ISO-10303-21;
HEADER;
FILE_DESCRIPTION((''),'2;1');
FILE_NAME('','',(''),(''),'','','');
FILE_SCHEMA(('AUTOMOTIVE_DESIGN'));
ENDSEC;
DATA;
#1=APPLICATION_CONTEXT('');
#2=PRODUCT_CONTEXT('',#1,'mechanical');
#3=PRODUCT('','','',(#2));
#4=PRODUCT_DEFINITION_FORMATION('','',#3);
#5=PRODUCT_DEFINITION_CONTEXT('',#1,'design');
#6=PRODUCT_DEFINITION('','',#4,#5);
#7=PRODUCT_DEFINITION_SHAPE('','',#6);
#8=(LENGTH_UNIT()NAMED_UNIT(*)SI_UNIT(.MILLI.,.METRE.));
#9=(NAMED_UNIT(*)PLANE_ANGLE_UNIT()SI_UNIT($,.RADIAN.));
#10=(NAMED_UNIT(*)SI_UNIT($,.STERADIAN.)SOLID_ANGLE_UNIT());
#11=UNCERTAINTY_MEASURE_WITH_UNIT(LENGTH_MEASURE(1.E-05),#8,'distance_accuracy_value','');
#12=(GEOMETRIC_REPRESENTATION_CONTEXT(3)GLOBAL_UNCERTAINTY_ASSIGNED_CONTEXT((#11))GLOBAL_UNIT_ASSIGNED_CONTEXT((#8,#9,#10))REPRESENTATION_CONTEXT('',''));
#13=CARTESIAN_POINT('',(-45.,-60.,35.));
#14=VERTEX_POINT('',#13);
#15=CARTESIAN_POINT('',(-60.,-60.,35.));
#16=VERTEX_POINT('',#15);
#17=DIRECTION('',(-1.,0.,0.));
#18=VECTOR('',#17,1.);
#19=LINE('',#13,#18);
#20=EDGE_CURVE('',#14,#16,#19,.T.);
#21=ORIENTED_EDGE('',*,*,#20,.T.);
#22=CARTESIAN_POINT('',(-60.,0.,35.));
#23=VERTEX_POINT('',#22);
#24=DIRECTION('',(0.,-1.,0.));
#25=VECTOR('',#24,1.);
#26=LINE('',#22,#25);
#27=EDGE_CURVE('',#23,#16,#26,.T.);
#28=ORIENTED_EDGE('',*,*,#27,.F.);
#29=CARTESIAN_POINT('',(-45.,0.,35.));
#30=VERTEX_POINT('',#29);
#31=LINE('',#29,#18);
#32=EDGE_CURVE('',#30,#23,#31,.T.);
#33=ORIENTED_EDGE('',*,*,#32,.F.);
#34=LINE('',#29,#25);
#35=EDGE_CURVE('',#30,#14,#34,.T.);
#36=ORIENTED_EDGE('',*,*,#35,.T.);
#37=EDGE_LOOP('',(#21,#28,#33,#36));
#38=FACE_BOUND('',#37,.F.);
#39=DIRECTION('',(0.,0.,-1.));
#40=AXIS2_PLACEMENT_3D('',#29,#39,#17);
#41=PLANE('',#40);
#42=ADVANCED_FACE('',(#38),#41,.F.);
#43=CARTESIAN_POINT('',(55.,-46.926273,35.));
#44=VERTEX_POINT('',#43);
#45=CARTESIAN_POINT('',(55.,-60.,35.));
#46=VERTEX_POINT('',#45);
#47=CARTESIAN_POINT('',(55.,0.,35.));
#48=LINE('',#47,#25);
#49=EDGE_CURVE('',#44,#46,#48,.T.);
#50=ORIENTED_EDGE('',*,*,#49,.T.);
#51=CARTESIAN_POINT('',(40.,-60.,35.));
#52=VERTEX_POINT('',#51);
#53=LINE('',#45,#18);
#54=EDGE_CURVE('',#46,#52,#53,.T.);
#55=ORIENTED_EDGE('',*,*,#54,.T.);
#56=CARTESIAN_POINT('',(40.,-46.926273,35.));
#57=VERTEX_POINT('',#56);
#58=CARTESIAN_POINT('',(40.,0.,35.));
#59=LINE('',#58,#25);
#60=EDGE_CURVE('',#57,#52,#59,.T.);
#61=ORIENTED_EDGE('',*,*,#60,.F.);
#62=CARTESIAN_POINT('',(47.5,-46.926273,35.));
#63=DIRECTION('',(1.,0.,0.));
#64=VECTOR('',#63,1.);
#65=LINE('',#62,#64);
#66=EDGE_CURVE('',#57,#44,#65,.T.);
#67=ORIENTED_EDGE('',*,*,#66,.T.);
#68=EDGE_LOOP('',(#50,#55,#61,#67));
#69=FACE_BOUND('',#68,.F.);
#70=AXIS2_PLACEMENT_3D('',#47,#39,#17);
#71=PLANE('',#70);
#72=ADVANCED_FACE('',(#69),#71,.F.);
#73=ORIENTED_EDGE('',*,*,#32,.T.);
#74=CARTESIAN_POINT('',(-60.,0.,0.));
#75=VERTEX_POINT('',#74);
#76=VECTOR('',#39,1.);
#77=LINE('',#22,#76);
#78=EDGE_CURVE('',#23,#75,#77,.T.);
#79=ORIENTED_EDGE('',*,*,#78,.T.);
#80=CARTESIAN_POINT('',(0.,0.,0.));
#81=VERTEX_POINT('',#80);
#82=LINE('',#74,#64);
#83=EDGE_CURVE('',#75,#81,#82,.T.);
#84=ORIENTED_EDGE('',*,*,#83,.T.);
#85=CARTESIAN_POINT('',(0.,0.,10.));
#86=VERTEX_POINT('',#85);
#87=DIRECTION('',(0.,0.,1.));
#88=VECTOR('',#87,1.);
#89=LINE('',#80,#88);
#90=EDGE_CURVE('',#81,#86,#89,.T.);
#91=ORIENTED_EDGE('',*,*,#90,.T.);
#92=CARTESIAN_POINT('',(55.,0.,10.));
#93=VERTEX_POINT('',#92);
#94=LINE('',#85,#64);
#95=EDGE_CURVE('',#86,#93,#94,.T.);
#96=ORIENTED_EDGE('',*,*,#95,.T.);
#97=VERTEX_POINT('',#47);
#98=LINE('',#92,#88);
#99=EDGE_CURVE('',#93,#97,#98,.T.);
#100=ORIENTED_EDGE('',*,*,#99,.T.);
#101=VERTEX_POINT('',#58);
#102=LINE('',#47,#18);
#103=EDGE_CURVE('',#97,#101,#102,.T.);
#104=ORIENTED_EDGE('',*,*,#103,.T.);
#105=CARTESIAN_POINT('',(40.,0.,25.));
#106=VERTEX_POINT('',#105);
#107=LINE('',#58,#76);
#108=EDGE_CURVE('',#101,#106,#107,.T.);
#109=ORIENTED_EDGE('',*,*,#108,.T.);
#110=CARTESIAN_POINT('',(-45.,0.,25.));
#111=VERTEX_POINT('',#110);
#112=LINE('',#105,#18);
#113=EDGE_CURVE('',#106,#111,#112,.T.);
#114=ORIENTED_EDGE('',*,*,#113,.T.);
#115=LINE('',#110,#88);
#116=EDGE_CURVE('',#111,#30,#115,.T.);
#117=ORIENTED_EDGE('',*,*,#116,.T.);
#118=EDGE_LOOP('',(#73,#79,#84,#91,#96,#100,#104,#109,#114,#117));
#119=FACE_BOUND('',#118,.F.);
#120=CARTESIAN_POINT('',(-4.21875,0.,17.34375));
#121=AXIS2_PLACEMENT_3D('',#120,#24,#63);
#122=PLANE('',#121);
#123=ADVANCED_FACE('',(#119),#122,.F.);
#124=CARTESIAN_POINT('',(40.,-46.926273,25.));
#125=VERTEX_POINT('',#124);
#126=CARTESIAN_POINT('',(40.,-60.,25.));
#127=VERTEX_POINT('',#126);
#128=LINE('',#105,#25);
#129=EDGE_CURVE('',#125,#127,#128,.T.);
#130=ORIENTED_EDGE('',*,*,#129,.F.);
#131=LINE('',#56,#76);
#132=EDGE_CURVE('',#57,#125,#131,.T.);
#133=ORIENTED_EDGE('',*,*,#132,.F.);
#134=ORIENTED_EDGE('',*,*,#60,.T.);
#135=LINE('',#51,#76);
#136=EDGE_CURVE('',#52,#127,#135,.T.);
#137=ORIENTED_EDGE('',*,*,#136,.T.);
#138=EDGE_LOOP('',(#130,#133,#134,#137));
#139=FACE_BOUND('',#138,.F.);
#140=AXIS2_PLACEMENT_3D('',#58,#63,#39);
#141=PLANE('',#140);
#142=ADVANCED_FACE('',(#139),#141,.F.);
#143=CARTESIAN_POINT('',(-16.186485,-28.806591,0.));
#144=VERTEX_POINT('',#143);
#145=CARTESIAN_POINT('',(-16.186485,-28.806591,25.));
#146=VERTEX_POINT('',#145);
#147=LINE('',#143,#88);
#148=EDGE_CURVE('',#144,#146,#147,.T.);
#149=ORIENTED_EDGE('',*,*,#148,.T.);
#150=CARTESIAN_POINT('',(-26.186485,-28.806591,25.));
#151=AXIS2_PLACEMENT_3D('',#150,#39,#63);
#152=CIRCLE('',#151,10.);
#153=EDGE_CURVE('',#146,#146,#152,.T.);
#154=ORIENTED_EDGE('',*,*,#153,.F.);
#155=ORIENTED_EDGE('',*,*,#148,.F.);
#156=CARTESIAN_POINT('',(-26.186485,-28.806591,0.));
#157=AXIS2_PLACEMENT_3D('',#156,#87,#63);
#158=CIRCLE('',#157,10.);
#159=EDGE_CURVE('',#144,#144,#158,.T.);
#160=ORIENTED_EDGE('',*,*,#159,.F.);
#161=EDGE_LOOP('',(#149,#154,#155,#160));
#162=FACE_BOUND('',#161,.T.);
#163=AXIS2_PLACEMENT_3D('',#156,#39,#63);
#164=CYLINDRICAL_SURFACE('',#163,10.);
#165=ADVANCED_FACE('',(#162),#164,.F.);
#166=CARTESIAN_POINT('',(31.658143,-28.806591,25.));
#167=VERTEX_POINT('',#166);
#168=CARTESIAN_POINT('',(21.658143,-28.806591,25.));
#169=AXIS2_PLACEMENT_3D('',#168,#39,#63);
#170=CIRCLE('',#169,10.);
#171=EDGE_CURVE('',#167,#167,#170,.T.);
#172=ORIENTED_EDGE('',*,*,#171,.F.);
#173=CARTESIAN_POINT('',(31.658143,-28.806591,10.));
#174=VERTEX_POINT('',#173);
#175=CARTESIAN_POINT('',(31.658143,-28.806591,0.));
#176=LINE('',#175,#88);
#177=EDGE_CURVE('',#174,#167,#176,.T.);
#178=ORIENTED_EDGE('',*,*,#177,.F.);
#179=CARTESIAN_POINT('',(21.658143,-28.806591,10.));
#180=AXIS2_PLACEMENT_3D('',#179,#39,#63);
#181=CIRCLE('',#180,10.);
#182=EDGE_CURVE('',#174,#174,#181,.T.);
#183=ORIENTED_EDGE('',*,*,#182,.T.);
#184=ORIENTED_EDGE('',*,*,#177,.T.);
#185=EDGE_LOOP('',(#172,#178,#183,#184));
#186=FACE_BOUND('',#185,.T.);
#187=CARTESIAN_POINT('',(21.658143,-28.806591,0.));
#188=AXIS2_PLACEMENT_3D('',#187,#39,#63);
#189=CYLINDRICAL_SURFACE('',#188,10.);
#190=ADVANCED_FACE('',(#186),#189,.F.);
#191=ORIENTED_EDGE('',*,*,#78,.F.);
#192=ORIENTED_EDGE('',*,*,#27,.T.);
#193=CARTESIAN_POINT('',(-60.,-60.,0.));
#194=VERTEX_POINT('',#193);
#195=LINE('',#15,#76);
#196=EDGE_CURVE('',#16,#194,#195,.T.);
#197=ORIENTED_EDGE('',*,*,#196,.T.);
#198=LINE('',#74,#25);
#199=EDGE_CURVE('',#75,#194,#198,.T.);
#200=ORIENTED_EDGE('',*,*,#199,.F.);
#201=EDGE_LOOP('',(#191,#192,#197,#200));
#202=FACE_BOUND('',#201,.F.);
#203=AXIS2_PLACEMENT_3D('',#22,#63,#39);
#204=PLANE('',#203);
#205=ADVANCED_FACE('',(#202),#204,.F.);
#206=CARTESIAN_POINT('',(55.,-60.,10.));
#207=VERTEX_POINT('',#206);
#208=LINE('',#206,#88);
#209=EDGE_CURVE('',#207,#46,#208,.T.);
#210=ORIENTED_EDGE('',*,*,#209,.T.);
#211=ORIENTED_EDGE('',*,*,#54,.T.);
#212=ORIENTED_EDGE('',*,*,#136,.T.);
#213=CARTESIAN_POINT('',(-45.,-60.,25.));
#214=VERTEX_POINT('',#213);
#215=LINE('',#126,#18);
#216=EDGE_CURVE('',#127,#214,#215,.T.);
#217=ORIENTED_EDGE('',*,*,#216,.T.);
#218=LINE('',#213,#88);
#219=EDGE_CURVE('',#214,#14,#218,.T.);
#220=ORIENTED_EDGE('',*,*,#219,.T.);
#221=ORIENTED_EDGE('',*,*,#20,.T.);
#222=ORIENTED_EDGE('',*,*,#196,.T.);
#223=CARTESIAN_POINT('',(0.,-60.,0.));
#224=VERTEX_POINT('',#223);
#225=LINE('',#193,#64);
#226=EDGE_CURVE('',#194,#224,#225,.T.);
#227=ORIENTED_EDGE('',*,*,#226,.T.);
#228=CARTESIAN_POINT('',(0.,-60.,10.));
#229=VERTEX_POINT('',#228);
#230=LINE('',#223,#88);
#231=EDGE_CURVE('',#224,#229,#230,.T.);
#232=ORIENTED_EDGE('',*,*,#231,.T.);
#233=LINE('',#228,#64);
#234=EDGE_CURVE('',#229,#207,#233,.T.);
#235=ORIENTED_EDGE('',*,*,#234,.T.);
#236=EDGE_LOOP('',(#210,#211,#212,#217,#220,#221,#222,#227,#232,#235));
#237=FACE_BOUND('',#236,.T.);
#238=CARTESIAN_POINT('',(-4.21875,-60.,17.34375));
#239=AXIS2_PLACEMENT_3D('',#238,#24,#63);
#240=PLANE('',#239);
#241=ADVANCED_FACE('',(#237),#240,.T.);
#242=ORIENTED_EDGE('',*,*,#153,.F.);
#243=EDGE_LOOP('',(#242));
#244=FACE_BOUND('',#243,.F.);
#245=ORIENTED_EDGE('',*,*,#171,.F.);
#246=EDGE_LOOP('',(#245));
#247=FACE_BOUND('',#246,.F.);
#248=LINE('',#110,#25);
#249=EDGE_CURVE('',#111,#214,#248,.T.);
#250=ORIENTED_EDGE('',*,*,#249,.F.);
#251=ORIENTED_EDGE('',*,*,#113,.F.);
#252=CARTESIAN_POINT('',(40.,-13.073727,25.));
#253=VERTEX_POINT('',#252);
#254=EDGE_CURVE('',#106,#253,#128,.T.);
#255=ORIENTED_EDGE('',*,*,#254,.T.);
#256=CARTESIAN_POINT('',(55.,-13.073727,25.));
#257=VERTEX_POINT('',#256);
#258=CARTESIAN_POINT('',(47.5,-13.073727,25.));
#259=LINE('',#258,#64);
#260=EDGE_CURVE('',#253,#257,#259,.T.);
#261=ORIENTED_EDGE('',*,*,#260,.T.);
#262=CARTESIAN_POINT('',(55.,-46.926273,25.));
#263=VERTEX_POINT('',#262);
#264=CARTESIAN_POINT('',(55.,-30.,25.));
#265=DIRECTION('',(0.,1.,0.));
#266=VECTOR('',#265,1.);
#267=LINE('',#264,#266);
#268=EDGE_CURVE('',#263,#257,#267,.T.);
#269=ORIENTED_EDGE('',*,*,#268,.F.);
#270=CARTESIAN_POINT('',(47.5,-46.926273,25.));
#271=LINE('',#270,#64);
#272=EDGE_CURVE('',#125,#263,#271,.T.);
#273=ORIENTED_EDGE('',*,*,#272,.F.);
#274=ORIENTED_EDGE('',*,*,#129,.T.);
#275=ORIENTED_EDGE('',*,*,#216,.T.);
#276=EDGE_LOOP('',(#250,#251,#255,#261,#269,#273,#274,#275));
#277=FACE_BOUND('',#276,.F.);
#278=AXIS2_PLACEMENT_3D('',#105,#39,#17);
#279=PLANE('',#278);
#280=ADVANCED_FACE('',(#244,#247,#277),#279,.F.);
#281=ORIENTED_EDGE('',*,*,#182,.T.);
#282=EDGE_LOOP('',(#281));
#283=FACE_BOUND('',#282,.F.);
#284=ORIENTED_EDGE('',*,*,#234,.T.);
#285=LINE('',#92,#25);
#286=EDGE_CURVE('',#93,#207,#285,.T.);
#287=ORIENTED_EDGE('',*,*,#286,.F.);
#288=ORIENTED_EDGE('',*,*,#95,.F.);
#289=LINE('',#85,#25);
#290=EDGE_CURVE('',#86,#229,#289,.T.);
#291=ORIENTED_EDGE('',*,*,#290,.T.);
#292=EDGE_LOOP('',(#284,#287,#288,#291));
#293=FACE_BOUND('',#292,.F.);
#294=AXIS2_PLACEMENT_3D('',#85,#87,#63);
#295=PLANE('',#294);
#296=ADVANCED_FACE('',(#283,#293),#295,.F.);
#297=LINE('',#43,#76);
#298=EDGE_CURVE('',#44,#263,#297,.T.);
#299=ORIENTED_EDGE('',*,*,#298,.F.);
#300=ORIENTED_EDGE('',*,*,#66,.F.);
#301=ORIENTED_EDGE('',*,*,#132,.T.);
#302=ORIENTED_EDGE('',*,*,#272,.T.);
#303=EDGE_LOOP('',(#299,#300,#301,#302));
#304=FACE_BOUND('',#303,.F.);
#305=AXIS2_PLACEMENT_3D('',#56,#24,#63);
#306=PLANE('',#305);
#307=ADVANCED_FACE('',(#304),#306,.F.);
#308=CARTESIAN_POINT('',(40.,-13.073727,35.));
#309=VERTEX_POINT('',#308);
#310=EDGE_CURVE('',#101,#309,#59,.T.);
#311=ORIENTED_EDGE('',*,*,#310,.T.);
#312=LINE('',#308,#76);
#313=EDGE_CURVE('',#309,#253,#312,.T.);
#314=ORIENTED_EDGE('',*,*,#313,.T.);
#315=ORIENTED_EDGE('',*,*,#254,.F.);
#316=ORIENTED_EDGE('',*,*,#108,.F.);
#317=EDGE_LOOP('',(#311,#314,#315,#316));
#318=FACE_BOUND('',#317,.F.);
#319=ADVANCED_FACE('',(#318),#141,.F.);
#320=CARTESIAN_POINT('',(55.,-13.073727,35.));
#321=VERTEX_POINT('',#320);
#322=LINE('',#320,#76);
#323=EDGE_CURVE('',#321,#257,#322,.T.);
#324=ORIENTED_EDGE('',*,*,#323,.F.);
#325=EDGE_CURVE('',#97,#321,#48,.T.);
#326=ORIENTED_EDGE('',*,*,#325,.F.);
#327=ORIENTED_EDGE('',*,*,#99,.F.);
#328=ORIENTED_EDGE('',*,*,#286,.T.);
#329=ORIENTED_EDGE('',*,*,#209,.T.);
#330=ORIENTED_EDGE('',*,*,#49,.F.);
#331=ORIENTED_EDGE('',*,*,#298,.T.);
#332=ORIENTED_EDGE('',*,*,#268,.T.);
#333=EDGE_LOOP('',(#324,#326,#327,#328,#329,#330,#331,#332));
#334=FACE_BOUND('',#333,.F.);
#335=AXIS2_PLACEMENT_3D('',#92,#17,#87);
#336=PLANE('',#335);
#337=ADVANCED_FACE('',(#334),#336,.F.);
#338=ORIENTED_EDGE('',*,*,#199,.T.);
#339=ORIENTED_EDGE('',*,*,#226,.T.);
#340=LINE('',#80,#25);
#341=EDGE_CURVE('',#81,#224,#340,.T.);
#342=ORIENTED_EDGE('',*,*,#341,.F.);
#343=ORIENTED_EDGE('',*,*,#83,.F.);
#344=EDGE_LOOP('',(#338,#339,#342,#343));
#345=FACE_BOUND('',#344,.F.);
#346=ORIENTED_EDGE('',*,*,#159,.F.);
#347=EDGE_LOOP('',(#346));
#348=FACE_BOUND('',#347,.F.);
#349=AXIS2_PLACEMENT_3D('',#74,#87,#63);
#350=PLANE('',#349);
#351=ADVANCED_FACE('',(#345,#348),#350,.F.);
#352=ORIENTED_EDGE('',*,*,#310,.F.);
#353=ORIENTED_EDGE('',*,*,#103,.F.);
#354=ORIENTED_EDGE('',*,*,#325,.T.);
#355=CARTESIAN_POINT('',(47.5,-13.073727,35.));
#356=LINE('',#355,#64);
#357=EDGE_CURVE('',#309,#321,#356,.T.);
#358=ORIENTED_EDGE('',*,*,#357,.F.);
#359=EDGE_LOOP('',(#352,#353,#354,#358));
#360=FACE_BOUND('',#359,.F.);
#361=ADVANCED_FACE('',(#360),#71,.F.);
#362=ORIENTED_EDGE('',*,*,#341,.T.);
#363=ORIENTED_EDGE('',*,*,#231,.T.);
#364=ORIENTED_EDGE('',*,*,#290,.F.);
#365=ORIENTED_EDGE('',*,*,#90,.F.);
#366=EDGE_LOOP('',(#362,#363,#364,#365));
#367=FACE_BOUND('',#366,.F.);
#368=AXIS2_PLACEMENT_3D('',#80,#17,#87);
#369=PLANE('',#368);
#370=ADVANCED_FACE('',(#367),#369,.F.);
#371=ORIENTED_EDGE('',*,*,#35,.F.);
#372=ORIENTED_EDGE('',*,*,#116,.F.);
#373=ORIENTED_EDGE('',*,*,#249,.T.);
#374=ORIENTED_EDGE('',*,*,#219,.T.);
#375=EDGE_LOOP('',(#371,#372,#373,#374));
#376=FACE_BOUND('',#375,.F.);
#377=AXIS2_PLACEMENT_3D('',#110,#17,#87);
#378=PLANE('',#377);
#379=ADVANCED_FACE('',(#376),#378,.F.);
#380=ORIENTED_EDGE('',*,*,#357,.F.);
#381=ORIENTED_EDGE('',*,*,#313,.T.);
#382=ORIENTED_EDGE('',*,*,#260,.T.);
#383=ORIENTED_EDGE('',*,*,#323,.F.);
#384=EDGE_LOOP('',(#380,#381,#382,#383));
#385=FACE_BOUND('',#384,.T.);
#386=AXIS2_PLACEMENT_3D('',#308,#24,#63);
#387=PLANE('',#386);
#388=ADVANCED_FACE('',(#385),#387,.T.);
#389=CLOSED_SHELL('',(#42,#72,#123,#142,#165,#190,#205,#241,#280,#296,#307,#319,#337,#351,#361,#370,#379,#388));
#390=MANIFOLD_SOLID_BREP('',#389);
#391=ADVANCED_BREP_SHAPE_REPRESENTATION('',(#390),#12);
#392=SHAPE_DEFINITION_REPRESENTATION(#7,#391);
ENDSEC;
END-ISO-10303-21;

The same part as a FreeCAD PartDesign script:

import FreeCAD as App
import Part
import Sketcher
from FreeCAD import Vector
Q = App.Units.Quantity


def add_polygon(sketch, points):
    """Adds a closed chain of lines whose ends are joined by coincident constraints."""
    first, n = sketch.GeometryCount, len(points)
    for a, b in zip(points, points[1:] + points[:1]):
        sketch.addGeometry(Part.LineSegment(App.Vector(*a, 0), App.Vector(*b, 0)), False)
    for i in range(n):
        sketch.addConstraint(Sketcher.Constraint("Coincident", first + i, 2, first + (i + 1) % n, 1))

doc = App.newDocument("Part")
params = doc.addObject("Spreadsheet::Sheet", "Params")
for row, (alias, value) in enumerate([
    ("sketch1_width", "60 mm"),
    ("sketch1_width2", "55 mm"),
    ("sketch1_width3", "15 mm"),
    ("sketch1_height", "35 mm"),
    ("sketch1_height2", "10 mm"),
    ("pad1_length", "60 mm"),
    ("sketch2_diameter", "20 mm"),
    ("pocket1_length", "34.8 mm"),
    ("sketch3_width", "15 mm"),
    ("pocket2_length", "10 mm"),
], start=1):
    params.set(f"A{row}", alias)
    params.set(f"B{row}", "=" + value)
    params.setAlias(f"B{row}", alias)

body = doc.addObject("PartDesign::Body", "Body")

# Sketch on XZ plane
sketch1 = body.newObject("Sketcher::SketchObject", "Sketch")
sketch1.AttachmentSupport = (doc.getObject("XZ_Plane"), [""])
sketch1.MapMode = "FlatFace"
add_polygon(sketch1, [(-60, 35), (-60, 0), (0, 0), (0, 10), (55, 10), (55, 35), (40, 35), (40, 25), (-45, 25), (-45, 35)])  # lines 0-9
sketch1.addConstraint([
    Sketcher.Constraint("Vertical", 0),
    Sketcher.Constraint("Horizontal", 1),
    Sketcher.Constraint("Vertical", 2),
    Sketcher.Constraint("Horizontal", 3),
    Sketcher.Constraint("Vertical", 4),
    Sketcher.Constraint("Horizontal", 5),
    Sketcher.Constraint("Vertical", 6),
    Sketcher.Constraint("Horizontal", 7),
    Sketcher.Constraint("Vertical", 8),
    Sketcher.Constraint("Horizontal", 9),
    Sketcher.Constraint("Coincident", 1, 2, -1, 1),
    Sketcher.Constraint("Horizontal", 5, 2, 8, 2),
    Sketcher.Constraint("Equal", 5, 9),
    Sketcher.Constraint("Equal", 2, 6),
    Sketcher.Constraint("DistanceX", 1, 1, 1, 2, Q("60 mm")),
    Sketcher.Constraint("DistanceX", 3, 1, 3, 2, Q("55 mm")),
    Sketcher.Constraint("DistanceX", 5, 2, 5, 1, Q("15 mm")),
    Sketcher.Constraint("DistanceY", 0, 2, 0, 1, Q("35 mm")),
    Sketcher.Constraint("DistanceY", 2, 1, 2, 2, Q("10 mm")),
])
sketch1.setExpression("Constraints[24]", "Params.sketch1_width")
sketch1.setExpression("Constraints[25]", "Params.sketch1_width2")
sketch1.setExpression("Constraints[26]", "Params.sketch1_width3")
sketch1.setExpression("Constraints[27]", "Params.sketch1_height")
sketch1.setExpression("Constraints[28]", "Params.sketch1_height2")
pad1 = body.newObject("PartDesign::Pad", "Pad")
pad1.Profile = sketch1
pad1.setExpression("Length", "Params.pad1_length")

# Sketch on XY plane
sketch2 = body.newObject("Sketcher::SketchObject", "Sketch001")
sketch2.AttachmentSupport = (doc.getObject("XY_Plane"), [""])
sketch2.MapMode = "FlatFace"
sketch2.addGeometry([
    Part.Circle(Vector(-26.186485, -28.806591, 0), Vector(0, 0, 1), 10),
    Part.Circle(Vector(21.658143, -28.806591, 0), Vector(0, 0, 1), 10),
], False)
sketch2.addConstraint([
    Sketcher.Constraint("Equal", 0, 1),
    Sketcher.Constraint("Horizontal", 0, 3, 1, 3),
    Sketcher.Constraint("Diameter", 0, Q("20 mm")),
    Sketcher.Constraint("DistanceY", 0, 3, -1, 1, Q("28.806591 mm")),
    Sketcher.Constraint("DistanceX", 0, 3, -1, 1, Q("26.186485 mm")),
    Sketcher.Constraint("DistanceX", -1, 1, 1, 3, Q("21.658143 mm")),
])
sketch2.setExpression("Constraints[2]", "Params.sketch2_diameter")
pocket1 = body.newObject("PartDesign::Pocket", "Pocket")
pocket1.Profile = sketch2
pocket1.setExpression("Length", "Params.pocket1_length")
pocket1.Reversed = True

# Sketch on XY plane
sketch3 = body.newObject("Sketcher::SketchObject", "Sketch002")
sketch3.AttachmentSupport = (doc.getObject("XY_Plane"), [""])
sketch3.MapMode = "FlatFace"
sketch3.AttachmentOffset = App.Placement(Vector(0, 0, 35), App.Rotation())
add_polygon(sketch3, [(40, -13.073727), (40, -46.926273), (55, -46.926273), (55, -13.073727)])  # lines 0-3
sketch3.addConstraint([
    Sketcher.Constraint("Vertical", 0),
    Sketcher.Constraint("Horizontal", 1),
    Sketcher.Constraint("Vertical", 2),
    Sketcher.Constraint("Horizontal", 3),
    Sketcher.Constraint("DistanceX", 1, 1, 1, 2, Q("15 mm")),
    Sketcher.Constraint("DistanceX", -1, 1, 0, 2, Q("40 mm")),
    Sketcher.Constraint("DistanceY", 0, 2, 0, 1, Q("33.852546 mm")),
    Sketcher.Constraint("DistanceY", 0, 2, -1, 1, Q("46.926273 mm")),
])
sketch3.setExpression("Constraints[8]", "Params.sketch3_width")
pocket2 = body.newObject("PartDesign::Pocket", "Pocket001")
pocket2.Profile = sketch3
pocket2.setExpression("Length", "Params.pocket2_length")

doc.recompute()
